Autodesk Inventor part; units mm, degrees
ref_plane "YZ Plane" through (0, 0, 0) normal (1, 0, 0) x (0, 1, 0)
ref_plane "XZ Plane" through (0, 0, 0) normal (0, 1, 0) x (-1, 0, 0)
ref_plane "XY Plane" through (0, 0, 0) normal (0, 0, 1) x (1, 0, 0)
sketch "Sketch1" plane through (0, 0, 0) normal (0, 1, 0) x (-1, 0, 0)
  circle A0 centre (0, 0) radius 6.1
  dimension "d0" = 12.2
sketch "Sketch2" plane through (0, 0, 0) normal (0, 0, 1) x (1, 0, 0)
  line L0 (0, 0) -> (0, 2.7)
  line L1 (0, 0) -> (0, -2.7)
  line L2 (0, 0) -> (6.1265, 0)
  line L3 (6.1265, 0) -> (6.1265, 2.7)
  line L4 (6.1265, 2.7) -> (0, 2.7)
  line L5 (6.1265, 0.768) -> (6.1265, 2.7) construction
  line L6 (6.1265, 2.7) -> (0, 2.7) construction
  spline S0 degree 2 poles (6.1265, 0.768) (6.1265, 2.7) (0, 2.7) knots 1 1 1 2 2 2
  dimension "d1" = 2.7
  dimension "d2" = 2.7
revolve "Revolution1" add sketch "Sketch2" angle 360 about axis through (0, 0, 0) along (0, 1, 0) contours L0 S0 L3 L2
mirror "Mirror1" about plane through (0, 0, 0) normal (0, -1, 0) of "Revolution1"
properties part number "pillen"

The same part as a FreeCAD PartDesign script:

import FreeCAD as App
import Part
import Sketcher

doc = App.newDocument("Part")
body = doc.addObject("PartDesign::Body", "Body")

sketch1 = body.newObject("Sketcher::SketchObject", "Sketch")
sketch1.AttachmentSupport = (doc.getObject("XY_Plane"), [""])
sketch1.MapMode = "FlatFace"
sketch1.addGeometry(Part.LineSegment(App.Vector(0, 2.7, 0), App.Vector(0, 0, 0)), False)
sketch1.addGeometry(Part.LineSegment(App.Vector(0, 0, 0), App.Vector(6.1265, 0, 0)), False)
sketch1.addGeometry(Part.LineSegment(App.Vector(6.1265, 0, 0), App.Vector(6.1265, 0.768, 0)), False)
sketch1.addGeometry(Part.BSplineCurve([App.Vector(6.1265, 0.768, 0), App.Vector(6.1265, 2.7, 0), App.Vector(0, 2.7, 0)], [3, 3], [1, 2], False, 2, [1, 1, 1], False), False)
sketch1.addConstraint(Sketcher.Constraint("Block", 3))
sketch1.addConstraint(Sketcher.Constraint("Coincident", 0, 2, 1, 1))
sketch1.addConstraint(Sketcher.Constraint("Coincident", 1, 2, 2, 1))
sketch1.addConstraint(Sketcher.Constraint("Coincident", 2, 2, 3, 1))
sketch1.addConstraint(Sketcher.Constraint("Coincident", 3, 2, 0, 1))
sketch1.addConstraint(Sketcher.Constraint("Vertical", 0))
sketch1.addConstraint(Sketcher.Constraint("Horizontal", 1))
sketch1.addConstraint(Sketcher.Constraint("Vertical", 2))
sketch1.addConstraint(Sketcher.Constraint("PointOnObject", 1, 2, -1))
revolution = body.newObject("PartDesign::Revolution", "Revolution")
revolution.Profile = sketch1
revolution.ReferenceAxis = (sketch1, ["V_Axis"])
revolution.Angle = 360
doc.recompute()

mirrored = body.newObject("PartDesign::Mirrored", "Mirrored")
mirrored.Originals = [revolution]
mirrored.MirrorPlane = (doc.getObject("XZ_Plane"), [""])
body.Tip = mirrored

doc.recompute()
